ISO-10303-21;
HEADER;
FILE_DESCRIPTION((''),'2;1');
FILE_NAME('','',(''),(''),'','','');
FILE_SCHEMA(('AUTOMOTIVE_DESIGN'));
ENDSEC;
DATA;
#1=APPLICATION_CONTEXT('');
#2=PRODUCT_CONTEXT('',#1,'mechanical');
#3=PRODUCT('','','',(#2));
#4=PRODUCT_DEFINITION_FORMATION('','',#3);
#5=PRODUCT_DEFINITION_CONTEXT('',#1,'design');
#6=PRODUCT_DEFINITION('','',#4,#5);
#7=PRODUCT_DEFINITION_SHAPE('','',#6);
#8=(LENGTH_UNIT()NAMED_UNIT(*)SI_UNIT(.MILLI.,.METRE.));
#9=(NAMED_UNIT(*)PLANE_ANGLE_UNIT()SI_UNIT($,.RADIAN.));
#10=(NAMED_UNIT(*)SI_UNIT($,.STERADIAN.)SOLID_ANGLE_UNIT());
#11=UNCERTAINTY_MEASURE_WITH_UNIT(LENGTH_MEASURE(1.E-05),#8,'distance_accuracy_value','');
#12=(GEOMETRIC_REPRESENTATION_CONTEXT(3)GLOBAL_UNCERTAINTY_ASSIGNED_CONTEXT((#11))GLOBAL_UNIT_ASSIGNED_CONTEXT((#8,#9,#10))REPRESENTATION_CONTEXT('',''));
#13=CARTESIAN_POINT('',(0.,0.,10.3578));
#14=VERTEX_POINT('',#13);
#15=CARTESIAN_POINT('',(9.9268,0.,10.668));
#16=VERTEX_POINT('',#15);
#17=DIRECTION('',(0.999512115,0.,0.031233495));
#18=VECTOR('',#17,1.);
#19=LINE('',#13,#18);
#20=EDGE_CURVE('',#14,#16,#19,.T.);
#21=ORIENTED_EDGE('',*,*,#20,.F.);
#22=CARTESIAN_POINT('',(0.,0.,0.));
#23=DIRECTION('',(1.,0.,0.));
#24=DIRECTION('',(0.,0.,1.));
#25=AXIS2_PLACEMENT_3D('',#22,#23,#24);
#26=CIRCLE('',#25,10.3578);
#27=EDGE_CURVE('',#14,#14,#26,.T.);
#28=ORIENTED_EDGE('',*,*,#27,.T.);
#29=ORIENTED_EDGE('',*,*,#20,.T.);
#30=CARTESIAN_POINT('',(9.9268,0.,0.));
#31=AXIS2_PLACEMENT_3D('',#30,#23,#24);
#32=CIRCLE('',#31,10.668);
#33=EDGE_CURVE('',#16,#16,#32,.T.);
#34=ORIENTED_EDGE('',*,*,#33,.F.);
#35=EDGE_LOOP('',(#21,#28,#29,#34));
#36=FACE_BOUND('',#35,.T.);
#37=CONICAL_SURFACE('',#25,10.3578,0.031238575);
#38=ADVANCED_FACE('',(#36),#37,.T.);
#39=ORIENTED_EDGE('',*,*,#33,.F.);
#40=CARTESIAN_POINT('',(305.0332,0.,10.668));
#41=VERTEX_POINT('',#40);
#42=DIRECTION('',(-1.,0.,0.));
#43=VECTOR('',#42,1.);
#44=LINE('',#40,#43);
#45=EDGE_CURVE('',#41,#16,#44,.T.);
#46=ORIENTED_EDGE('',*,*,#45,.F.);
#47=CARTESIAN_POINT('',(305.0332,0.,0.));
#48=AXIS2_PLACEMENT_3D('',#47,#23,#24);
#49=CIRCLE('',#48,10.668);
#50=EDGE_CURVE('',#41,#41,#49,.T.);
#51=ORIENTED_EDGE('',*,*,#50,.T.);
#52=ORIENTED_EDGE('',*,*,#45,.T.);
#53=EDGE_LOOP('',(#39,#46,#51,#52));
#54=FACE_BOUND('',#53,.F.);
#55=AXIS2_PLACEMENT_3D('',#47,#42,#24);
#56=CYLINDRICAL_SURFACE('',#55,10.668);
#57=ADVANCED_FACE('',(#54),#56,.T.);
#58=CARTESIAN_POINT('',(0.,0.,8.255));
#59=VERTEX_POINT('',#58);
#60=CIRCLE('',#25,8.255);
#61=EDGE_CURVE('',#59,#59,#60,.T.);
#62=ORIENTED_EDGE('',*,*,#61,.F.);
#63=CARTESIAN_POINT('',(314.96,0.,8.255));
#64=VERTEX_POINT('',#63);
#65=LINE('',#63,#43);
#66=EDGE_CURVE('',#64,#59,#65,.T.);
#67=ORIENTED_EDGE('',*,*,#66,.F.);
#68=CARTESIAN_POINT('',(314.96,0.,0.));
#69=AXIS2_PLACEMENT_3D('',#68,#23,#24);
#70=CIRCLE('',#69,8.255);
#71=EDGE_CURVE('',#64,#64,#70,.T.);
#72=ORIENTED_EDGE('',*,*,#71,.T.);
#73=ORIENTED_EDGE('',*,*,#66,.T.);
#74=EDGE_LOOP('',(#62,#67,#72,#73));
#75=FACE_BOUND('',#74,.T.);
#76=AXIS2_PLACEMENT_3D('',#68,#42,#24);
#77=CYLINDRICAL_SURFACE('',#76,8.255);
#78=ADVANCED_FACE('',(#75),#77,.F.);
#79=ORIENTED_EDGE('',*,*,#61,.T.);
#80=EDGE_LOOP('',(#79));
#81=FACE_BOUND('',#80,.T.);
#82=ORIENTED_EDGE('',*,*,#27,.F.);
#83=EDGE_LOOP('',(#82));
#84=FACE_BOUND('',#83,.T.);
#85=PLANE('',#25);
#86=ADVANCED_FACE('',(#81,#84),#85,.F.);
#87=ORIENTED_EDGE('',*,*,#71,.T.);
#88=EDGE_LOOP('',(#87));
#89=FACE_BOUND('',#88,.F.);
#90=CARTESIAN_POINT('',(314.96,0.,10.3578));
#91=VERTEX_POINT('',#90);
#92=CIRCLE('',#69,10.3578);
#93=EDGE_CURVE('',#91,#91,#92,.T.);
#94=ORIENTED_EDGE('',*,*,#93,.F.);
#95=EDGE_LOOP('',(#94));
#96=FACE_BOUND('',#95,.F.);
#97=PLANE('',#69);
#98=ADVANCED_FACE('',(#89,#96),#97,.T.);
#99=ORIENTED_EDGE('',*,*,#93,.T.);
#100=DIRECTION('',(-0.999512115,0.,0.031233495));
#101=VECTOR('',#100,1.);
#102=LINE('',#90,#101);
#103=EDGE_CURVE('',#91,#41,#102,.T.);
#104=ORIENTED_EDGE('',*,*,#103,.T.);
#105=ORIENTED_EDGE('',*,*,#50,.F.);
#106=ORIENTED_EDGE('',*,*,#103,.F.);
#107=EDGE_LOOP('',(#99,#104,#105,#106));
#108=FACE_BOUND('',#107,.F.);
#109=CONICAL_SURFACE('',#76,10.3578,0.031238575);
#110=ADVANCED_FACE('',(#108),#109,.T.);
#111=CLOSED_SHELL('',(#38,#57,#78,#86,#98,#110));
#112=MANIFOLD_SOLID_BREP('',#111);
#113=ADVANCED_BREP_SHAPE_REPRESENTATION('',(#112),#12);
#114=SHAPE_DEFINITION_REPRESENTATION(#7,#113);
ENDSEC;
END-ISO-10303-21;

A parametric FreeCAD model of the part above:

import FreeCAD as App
import Part
import Sketcher

V = App.Vector
Q = App.Units.Quantity

doc = App.newDocument("Part")
body = doc.addObject("PartDesign::Body", "Body")

# Sketch on XZ plane
sketch1 = body.newObject("Sketcher::SketchObject", "Sketch")
sketch1.AttachmentSupport = (doc.getObject("XZ_Plane"), [""])
sketch1.MapMode = "FlatFace"
sketch1.addGeometry([
    Part.LineSegment(V(315, 10.4, 0), V(315, 8.3, 0)),  # 0
    Part.LineSegment(V(315, 8.3, 0), V(0, 8.3, 0)),  # 1
    Part.LineSegment(V(0, 8.3, 0), V(0, 10.4, 0)),  # 2
    Part.LineSegment(V(0, 10.4, 0), V(9.9, 10.7, 0)),  # 3
    Part.LineSegment(V(9.9, 10.7, 0), V(305, 10.7, 0)),  # 4
    Part.LineSegment(V(305, 10.7, 0), V(315, 10.4, 0)),  # 5
], False)
sketch1.addConstraint([
    Sketcher.Constraint("Coincident", 0, 2, 1, 1),
    Sketcher.Constraint("Coincident", 1, 2, 2, 1),
    Sketcher.Constraint("Coincident", 2, 2, 3, 1),
    Sketcher.Constraint("Coincident", 3, 2, 4, 1),
    Sketcher.Constraint("Coincident", 4, 2, 5, 1),
    Sketcher.Constraint("Coincident", 5, 2, 0, 1),
    Sketcher.Constraint("Vertical", 0),
    Sketcher.Constraint("Horizontal", 1),
    Sketcher.Constraint("Vertical", 2),
    Sketcher.Constraint("Horizontal", 4),
    Sketcher.Constraint("PointOnObject", 1, 2, -2),
    Sketcher.Constraint("Horizontal", 2, 2, 5, 2),
    Sketcher.Constraint("Equal", 3, 5),
    Sketcher.Constraint("DistanceX", 1, 2, 1, 1, Q("12.4 in")),
    Sketcher.Constraint("Angle", 3, Q("1.7898 deg")),
    Sketcher.Constraint("DistanceY", -1, 1, 3, 2, Q("0.42 in")),
    Sketcher.Constraint("Distance", 3, Q("0.391 in")),
    Sketcher.Constraint("DistanceY", -1, 1, 0, 2, Q("0.325 in")),
])
revolution = body.newObject("PartDesign::Revolution", "Revolution")
revolution.Profile = sketch1
revolution.ReferenceAxis = (sketch1, ["H_Axis"])
revolution.Angle = 360

doc.recompute()
